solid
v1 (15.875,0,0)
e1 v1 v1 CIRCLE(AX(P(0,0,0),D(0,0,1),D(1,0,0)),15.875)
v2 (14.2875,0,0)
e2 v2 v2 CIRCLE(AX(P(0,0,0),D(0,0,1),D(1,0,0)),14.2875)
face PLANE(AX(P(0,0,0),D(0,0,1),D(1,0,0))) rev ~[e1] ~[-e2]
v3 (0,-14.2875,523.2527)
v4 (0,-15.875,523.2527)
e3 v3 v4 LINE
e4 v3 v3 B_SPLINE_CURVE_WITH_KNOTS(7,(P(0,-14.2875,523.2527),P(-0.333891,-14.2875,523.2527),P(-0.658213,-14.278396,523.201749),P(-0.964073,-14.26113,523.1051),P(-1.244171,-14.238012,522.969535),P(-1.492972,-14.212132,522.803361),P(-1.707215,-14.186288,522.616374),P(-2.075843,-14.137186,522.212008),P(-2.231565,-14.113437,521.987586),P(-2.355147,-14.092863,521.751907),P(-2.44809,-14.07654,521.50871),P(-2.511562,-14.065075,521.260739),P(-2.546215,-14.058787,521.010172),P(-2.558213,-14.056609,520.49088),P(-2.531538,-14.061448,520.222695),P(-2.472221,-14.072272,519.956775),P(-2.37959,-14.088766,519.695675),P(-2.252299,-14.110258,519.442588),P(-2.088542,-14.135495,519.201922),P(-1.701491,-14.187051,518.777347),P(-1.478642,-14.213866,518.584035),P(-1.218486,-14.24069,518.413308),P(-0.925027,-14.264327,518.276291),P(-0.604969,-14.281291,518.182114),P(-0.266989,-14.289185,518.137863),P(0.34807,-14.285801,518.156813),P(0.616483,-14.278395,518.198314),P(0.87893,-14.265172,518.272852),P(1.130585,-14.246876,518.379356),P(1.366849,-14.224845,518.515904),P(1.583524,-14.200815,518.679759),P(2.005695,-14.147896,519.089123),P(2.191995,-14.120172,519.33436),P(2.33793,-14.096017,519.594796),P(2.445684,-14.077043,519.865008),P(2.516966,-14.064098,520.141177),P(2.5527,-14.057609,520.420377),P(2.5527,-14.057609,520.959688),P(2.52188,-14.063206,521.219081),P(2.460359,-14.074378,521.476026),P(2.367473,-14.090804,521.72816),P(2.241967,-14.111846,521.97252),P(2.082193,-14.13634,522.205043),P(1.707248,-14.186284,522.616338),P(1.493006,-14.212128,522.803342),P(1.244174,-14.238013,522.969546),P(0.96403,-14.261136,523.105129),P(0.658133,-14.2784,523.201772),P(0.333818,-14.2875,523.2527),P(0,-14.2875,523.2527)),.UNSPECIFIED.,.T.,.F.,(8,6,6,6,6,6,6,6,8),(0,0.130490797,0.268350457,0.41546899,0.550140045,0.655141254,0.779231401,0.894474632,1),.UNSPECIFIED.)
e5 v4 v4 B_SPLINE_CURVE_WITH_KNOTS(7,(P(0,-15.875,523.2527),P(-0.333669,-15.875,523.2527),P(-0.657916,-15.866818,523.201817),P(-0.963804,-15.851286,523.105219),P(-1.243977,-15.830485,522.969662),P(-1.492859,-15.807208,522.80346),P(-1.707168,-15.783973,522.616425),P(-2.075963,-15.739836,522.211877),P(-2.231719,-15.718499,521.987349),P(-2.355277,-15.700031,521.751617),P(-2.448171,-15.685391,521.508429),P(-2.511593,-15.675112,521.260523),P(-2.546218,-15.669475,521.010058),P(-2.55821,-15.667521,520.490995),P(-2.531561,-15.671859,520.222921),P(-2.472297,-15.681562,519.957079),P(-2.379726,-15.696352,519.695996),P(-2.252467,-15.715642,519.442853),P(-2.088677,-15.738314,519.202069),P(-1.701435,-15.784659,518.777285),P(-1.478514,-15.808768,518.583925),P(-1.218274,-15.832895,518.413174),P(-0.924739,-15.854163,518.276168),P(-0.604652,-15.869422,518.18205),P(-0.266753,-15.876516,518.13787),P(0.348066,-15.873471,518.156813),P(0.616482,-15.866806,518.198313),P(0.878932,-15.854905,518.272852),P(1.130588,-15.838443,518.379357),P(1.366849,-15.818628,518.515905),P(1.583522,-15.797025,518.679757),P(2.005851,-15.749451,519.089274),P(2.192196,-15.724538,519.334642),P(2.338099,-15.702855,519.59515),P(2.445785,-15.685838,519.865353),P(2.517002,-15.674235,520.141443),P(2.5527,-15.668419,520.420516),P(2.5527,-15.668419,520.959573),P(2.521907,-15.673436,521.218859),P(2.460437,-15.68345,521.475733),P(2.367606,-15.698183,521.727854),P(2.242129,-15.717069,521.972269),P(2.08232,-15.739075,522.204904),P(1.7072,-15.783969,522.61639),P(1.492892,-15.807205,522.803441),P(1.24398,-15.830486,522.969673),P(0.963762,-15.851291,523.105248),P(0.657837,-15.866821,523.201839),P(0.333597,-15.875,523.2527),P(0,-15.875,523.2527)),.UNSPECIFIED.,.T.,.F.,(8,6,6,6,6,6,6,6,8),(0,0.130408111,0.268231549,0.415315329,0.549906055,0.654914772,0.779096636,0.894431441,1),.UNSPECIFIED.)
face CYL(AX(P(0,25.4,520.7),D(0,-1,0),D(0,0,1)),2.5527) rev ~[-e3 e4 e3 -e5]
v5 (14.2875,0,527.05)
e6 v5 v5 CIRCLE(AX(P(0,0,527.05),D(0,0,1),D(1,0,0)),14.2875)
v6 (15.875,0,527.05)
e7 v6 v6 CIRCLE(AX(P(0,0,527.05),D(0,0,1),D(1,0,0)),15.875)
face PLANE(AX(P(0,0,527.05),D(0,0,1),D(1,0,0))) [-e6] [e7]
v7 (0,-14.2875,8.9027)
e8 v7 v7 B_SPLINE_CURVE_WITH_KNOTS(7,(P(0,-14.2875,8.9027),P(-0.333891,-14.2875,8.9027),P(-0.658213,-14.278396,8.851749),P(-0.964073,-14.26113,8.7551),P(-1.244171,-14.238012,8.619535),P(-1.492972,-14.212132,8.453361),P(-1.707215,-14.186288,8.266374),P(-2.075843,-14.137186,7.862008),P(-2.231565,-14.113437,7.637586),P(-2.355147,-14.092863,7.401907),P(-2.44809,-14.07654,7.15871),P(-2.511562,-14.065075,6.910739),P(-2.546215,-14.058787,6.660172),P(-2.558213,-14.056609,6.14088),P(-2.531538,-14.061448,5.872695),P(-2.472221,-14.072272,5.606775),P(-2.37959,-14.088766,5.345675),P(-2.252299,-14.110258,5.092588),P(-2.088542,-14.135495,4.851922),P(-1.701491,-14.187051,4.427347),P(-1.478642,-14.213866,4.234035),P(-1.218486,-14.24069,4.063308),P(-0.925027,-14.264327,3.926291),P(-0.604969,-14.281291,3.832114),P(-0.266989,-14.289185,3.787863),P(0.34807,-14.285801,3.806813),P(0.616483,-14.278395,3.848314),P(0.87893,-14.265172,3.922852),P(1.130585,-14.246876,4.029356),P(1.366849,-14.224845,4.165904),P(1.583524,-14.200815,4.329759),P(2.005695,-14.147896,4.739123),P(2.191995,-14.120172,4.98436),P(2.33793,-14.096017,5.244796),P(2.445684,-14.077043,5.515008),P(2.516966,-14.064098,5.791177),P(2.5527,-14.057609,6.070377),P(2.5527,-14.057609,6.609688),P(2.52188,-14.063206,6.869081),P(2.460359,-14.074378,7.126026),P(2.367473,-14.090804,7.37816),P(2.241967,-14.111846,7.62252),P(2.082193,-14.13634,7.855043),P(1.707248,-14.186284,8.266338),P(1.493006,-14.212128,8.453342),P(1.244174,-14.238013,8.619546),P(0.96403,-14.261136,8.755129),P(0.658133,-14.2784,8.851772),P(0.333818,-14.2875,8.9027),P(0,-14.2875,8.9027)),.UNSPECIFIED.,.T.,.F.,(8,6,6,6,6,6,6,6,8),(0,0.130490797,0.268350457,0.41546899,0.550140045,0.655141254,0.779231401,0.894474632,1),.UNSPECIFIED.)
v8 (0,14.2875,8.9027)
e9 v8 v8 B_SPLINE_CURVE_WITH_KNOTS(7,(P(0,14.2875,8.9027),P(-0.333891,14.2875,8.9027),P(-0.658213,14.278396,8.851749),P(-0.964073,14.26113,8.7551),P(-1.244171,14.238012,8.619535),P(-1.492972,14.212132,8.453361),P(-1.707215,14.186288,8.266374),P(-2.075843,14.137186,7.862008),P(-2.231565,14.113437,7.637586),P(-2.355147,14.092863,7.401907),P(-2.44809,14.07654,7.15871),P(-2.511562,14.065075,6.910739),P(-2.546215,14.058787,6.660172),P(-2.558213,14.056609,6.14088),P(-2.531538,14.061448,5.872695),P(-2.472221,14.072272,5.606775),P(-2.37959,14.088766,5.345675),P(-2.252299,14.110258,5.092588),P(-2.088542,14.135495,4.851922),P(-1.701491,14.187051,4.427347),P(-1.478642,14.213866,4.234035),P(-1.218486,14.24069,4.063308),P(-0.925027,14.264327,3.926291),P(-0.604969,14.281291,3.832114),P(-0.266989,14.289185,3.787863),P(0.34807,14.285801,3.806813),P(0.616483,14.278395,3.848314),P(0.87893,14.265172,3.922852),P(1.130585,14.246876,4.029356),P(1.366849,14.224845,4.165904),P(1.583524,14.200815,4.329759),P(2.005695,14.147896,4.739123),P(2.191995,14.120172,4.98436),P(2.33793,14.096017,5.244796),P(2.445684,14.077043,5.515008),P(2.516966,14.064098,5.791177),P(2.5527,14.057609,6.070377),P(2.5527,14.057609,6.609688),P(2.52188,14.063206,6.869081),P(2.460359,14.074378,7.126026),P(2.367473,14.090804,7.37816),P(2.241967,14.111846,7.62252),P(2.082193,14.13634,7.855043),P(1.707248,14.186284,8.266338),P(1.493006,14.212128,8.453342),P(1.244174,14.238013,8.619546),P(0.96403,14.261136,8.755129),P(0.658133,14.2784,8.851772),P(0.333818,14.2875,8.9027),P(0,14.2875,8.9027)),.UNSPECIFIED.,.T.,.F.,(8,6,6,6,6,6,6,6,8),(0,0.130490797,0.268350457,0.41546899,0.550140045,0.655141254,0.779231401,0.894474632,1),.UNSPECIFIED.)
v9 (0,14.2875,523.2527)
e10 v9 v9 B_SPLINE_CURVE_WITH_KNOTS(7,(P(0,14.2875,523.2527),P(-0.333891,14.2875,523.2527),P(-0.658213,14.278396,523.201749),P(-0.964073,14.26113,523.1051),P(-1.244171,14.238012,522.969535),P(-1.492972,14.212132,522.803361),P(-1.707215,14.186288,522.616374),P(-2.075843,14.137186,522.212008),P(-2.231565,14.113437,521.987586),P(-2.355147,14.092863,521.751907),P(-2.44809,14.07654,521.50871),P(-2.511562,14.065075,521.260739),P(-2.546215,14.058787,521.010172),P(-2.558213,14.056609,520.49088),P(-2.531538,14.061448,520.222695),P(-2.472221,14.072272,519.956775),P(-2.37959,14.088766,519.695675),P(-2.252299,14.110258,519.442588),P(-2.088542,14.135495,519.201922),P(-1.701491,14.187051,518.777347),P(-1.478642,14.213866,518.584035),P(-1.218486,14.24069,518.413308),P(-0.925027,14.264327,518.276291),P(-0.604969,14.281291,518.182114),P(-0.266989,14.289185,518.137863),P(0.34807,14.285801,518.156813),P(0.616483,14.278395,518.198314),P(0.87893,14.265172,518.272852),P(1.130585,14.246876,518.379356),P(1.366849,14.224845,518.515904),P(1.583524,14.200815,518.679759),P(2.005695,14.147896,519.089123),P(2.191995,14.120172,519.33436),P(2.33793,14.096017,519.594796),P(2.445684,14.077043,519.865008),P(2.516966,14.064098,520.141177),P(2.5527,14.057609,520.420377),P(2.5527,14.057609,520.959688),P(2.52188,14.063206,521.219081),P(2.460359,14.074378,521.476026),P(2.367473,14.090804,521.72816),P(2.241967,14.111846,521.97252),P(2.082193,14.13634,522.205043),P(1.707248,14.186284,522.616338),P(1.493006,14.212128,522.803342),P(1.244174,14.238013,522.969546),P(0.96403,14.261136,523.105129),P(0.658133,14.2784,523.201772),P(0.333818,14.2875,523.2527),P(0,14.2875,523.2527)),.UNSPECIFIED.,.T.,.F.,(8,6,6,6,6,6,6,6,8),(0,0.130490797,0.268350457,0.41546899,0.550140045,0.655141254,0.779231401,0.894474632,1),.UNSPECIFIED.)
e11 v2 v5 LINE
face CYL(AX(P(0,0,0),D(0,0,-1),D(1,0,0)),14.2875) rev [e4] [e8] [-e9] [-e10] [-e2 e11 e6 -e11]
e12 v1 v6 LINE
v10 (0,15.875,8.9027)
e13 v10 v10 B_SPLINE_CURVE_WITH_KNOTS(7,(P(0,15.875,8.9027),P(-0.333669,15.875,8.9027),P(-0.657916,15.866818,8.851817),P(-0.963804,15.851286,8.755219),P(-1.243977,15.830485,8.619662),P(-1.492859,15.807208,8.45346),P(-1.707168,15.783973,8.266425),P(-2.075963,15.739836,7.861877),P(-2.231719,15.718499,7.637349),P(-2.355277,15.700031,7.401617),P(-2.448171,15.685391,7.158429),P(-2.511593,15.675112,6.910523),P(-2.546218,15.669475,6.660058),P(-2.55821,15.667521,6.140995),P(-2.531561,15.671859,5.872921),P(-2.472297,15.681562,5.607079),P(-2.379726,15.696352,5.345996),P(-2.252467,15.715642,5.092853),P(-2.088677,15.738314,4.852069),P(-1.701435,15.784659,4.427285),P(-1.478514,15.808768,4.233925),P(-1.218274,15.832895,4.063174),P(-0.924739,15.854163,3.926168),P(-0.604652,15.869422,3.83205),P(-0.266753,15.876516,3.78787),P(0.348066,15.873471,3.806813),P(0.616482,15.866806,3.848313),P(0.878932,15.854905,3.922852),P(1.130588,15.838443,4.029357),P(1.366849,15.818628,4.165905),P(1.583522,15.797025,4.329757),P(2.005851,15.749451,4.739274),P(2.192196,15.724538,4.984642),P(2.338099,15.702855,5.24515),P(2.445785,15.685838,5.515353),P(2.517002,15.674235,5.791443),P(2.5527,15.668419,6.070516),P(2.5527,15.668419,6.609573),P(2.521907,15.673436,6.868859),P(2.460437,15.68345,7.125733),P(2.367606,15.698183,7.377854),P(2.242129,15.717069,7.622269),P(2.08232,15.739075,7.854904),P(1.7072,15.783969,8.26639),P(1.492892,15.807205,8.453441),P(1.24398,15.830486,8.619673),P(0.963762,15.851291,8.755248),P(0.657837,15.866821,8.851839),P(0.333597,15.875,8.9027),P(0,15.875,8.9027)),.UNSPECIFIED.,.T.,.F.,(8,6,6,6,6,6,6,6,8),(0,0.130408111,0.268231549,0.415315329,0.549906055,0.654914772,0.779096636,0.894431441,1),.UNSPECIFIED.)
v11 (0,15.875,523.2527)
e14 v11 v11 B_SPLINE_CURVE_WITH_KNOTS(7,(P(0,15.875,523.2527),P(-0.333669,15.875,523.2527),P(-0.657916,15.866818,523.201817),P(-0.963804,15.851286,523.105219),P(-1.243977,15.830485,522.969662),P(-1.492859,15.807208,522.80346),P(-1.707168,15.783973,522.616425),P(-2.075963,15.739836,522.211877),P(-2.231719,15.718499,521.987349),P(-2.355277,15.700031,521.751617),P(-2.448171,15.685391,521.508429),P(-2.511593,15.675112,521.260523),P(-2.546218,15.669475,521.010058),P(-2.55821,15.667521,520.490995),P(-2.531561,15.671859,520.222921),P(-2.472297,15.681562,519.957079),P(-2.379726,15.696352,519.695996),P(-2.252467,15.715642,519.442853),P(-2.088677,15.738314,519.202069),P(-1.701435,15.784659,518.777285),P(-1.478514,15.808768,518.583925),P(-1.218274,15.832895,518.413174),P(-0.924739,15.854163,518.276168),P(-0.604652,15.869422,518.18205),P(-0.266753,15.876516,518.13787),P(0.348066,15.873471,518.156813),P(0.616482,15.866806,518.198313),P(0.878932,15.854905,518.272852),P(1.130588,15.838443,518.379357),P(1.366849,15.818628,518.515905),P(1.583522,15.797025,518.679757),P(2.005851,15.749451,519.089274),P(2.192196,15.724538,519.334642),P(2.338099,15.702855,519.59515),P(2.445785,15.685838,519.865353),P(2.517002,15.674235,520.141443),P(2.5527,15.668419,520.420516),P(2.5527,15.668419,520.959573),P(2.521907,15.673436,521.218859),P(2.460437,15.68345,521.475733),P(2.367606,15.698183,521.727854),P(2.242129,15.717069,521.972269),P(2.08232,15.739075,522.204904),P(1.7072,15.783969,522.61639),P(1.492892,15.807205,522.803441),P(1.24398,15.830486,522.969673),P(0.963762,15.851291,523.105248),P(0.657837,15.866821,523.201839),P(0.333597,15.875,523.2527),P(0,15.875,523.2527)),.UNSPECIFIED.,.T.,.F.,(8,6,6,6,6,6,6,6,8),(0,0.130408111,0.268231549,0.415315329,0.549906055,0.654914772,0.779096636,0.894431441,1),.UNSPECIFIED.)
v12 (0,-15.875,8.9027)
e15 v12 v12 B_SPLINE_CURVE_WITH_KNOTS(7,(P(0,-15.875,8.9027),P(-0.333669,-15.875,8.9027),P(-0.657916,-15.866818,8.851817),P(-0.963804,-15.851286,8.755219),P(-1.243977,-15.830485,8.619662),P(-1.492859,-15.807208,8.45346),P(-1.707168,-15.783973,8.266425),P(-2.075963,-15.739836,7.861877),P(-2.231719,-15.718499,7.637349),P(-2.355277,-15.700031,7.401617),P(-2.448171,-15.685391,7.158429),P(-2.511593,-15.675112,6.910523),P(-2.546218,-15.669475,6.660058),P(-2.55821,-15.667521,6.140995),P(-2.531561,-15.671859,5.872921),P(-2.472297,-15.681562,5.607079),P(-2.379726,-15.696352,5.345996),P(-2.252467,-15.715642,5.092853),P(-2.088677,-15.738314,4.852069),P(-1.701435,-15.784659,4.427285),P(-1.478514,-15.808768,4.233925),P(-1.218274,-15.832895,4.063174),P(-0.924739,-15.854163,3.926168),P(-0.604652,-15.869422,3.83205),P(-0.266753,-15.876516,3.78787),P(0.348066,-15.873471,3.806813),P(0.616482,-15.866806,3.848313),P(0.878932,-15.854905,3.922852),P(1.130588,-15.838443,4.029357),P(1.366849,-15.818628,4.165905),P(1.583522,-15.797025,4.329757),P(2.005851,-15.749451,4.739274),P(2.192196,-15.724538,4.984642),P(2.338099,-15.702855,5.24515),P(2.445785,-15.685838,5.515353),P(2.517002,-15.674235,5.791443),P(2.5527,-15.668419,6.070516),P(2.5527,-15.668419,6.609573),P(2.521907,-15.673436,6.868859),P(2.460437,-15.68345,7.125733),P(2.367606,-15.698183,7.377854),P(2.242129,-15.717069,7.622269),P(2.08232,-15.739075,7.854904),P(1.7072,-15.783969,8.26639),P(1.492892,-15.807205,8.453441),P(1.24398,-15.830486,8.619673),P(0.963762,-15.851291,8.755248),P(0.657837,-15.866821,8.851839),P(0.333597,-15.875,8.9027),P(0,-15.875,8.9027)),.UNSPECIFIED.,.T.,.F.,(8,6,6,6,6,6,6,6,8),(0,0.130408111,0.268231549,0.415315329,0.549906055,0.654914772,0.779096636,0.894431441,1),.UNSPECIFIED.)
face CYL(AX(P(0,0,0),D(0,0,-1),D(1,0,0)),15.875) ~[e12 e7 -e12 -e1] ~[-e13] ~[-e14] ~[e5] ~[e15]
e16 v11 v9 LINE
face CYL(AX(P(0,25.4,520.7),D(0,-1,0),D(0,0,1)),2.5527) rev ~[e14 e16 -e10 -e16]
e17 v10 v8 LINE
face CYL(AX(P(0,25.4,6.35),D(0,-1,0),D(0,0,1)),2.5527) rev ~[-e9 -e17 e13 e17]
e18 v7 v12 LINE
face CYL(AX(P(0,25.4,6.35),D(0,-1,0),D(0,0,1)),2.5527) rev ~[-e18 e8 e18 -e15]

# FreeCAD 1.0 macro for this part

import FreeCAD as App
import Part
import Sketcher
Q = App.Units.Quantity

doc = App.newDocument("Part")
body = doc.addObject("PartDesign::Body", "Body")

# Sketch on XY plane
sketch1 = doc.addObject("Sketcher::SketchObject", "Sketch")
body.addObject(sketch1)
sketch1.AttachmentSupport = (doc.XY_Plane, [""])
sketch1.MapMode = "FlatFace"
sketch1.addGeometry([
    Part.Circle(App.Vector(0, 0, 0), App.Vector(0, 0, 1), 16),
    Part.Circle(App.Vector(0, 0, 0), App.Vector(0, 0, 1), 14),
], False)
sketch1.addConstraint([
    Sketcher.Constraint("Coincident", 0, 3, -1, 1),
    Sketcher.Constraint("Coincident", 1, 3, -1, 1),
    Sketcher.Constraint("Diameter", 0, Q("1.25 in")),
    Sketcher.Constraint("Diameter", 1, Q("1.125 in")),
])
pad1 = doc.addObject("PartDesign::Pad", "Pad")
body.addObject(pad1)
pad1.Profile = sketch1
pad1.Length = Q("20.75 in")

# Sketch on XZ plane
sketch2 = doc.addObject("Sketcher::SketchObject", "Sketch001")
body.addObject(sketch2)
sketch2.AttachmentSupport = (doc.XZ_Plane, [""])
sketch2.MapMode = "FlatFace"
sketch2.AttachmentOffset = App.Placement(App.Vector(0, 0, -1 * 25.4), App.Rotation())
sketch2.addGeometry([
    Part.Circle(App.Vector(0, 6.3, 0), App.Vector(0, 0, 1), 2.6),
    Part.Circle(App.Vector(0, 520.7, 0), App.Vector(0, 0, 1), 2.6),
], False)
sketch2.addConstraint([
    Sketcher.Constraint("Equal", 0, 1),
    Sketcher.Constraint("PointOnObject", 0, 3, -2),
    Sketcher.Constraint("PointOnObject", 1, 3, -2),
    Sketcher.Constraint("Diameter", 0, Q("0.201 in")),
    Sketcher.Constraint("DistanceY", -1, 1, 1, 3, Q("20.5 in")),
    Sketcher.Constraint("DistanceY", -1, 1, 0, 3, Q("0.25 in")),
])
doc.recompute()
hole = doc.addObject("PartDesign::Hole", "Hole")
body.addObject(hole)
hole.Profile = sketch2
hole.ThreadType = "None"
hole.Diameter = Q("0.201 in")
hole.DepthType = "ThroughAll"
hole.Reversed = True

doc.recompute()
